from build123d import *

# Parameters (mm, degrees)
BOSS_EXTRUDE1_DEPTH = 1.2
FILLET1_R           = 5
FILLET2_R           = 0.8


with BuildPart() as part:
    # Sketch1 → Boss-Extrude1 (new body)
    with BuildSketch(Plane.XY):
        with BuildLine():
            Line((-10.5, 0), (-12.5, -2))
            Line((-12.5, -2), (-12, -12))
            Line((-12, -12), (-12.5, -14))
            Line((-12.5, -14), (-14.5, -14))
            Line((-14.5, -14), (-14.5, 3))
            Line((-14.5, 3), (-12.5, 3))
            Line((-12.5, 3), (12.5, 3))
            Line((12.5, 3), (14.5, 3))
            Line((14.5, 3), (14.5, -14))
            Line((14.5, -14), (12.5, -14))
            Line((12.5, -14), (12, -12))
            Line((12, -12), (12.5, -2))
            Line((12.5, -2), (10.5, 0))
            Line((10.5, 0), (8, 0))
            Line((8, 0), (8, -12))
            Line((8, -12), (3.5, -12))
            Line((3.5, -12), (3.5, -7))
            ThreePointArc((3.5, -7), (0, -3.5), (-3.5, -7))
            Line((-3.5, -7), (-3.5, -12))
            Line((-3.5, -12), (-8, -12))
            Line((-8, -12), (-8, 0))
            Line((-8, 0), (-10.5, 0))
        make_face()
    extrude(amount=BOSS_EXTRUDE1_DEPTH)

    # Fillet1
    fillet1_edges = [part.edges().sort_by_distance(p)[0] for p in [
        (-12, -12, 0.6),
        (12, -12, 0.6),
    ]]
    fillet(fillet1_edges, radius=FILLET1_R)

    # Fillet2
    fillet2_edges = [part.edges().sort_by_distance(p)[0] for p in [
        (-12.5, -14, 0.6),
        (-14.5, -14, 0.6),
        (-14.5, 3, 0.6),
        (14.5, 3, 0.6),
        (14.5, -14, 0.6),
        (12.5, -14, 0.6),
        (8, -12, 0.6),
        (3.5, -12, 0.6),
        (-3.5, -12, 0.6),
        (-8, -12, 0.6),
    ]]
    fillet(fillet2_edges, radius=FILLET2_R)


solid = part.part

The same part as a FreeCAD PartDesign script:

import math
import FreeCAD as App
import Part
import Sketcher
from FreeCAD import Vector


def edges_at(feature, points):
    """Names of the edges that pass closest to the given points."""
    edges = feature.Shape.Edges
    near = lambda p: min(range(len(edges)), key=lambda i: edges[i].distToShape(Part.Vertex(*p))[0])
    return sorted({f"Edge{near(p) + 1}" for p in points})

doc = App.newDocument("Part")
body = doc.addObject("PartDesign::Body", "Body")

# Sketch on XY plane
sketch1 = body.newObject("Sketcher::SketchObject", "Sketch")
sketch1.AttachmentSupport = (doc.getObject("XY_Plane"), [""])
sketch1.MapMode = "FlatFace"
sketch1.addGeometry([
    Part.LineSegment(Vector(-12.5, -2, 0), Vector(-10.5, 0, 0)),  # 0
    Part.LineSegment(Vector(-10.5, 0, 0), Vector(-8, 0, 0)),  # 1
    Part.LineSegment(Vector(-8, 0, 0), Vector(-8, -12, 0)),  # 2
    Part.LineSegment(Vector(-8, -12, 0), Vector(-3.5, -12, 0)),  # 3
    Part.LineSegment(Vector(-3.5, -12, 0), Vector(-3.5, -7, 0)),  # 4
    Part.ArcOfCircle(Part.Circle(Vector(0, -7, 0), Vector(0, 0, 1), 3.5), math.radians(0), math.radians(180)),  # 5
    Part.LineSegment(Vector(3.5, -7, 0), Vector(3.5, -12, 0)),  # 6
    Part.LineSegment(Vector(3.5, -12, 0), Vector(8, -12, 0)),  # 7
    Part.LineSegment(Vector(8, -12, 0), Vector(8, 0, 0)),  # 8
    Part.LineSegment(Vector(8, 0, 0), Vector(10.5, 0, 0)),  # 9
    Part.LineSegment(Vector(10.5, 0, 0), Vector(12.5, -2, 0)),  # 10
    Part.LineSegment(Vector(12.5, -2, 0), Vector(12, -12, 0)),  # 11
    Part.LineSegment(Vector(12, -12, 0), Vector(12.5, -14, 0)),  # 12
    Part.LineSegment(Vector(12.5, -14, 0), Vector(14.5, -14, 0)),  # 13
    Part.LineSegment(Vector(14.5, -14, 0), Vector(14.5, 3, 0)),  # 14
    Part.LineSegment(Vector(14.5, 3, 0), Vector(-14.5, 3, 0)),  # 15
    Part.LineSegment(Vector(-14.5, 3, 0), Vector(-14.5, -14, 0)),  # 16
    Part.LineSegment(Vector(-14.5, -14, 0), Vector(-12.5, -14, 0)),  # 17
    Part.LineSegment(Vector(-12.5, -14, 0), Vector(-12, -12, 0)),  # 18
    Part.LineSegment(Vector(-12, -12, 0), Vector(-12.5, -2, 0)),  # 19
], False)
sketch1.addConstraint([
    Sketcher.Constraint("Coincident", 0, 2, 1, 1),
    Sketcher.Constraint("Coincident", 1, 2, 2, 1),
    Sketcher.Constraint("Coincident", 2, 2, 3, 1),
    Sketcher.Constraint("Coincident", 3, 2, 4, 1),
    Sketcher.Constraint("Tangent", 4, 2, 5, 2),
    Sketcher.Constraint("Tangent", 5, 1, 6, 1),
    Sketcher.Constraint("Coincident", 6, 2, 7, 1),
    Sketcher.Constraint("Coincident", 7, 2, 8, 1),
    Sketcher.Constraint("Coincident", 8, 2, 9, 1),
    Sketcher.Constraint("Coincident", 9, 2, 10, 1),
    Sketcher.Constraint("Coincident", 10, 2, 11, 1),
    Sketcher.Constraint("Coincident", 11, 2, 12, 1),
    Sketcher.Constraint("Coincident", 12, 2, 13, 1),
    Sketcher.Constraint("Coincident", 13, 2, 14, 1),
    Sketcher.Constraint("Coincident", 14, 2, 15, 1),
    Sketcher.Constraint("Coincident", 15, 2, 16, 1),
    Sketcher.Constraint("Coincident", 16, 2, 17, 1),
    Sketcher.Constraint("Coincident", 17, 2, 18, 1),
    Sketcher.Constraint("Coincident", 18, 2, 19, 1),
    Sketcher.Constraint("Coincident", 19, 2, 0, 1),
    Sketcher.Constraint("Horizontal", 1),
    Sketcher.Constraint("Vertical", 2),
    Sketcher.Constraint("Horizontal", 3),
    Sketcher.Constraint("Vertical", 4),
    Sketcher.Constraint("Vertical", 6),
    Sketcher.Constraint("Horizontal", 7),
    Sketcher.Constraint("Vertical", 8),
    Sketcher.Constraint("Horizontal", 9),
    Sketcher.Constraint("Horizontal", 13),
    Sketcher.Constraint("Vertical", 14),
    Sketcher.Constraint("Horizontal", 15),
    Sketcher.Constraint("Vertical", 16),
    Sketcher.Constraint("Horizontal", 17),
    Sketcher.Constraint("Symmetric", 1, 2, 8, 2, -1, 1),
    Sketcher.Constraint("Symmetric", 3, 2, 6, 2, -2),
    Sketcher.Constraint("Symmetric", 0, 2, 9, 2, -2),
    Sketcher.Constraint("Symmetric", 13, 2, 16, 2, -2),
    Sketcher.Constraint("Symmetric", 11, 2, 18, 2, -2),
    Sketcher.Constraint("Symmetric", 10, 2, 19, 2, -2),
    Sketcher.Constraint("Perpendicular", 0, 10),
    Sketcher.Constraint("Horizontal", 7, 2, 11, 2),
    Sketcher.Constraint("Vertical", 10, 2, 12, 2),
    Sketcher.Constraint("Vertical", 17, 2, 19, 2),
    Sketcher.Constraint("Radius", 5, 3.5),
    Sketcher.Constraint("DistanceX", 13, 1, 13, 2, 2.0),
    Sketcher.Constraint("DistanceX", 15, 2, 15, 1, 29.0),
    Sketcher.Constraint("DistanceY", 2, 2, 2, 1, 12.0),
    Sketcher.Constraint("DistanceY", 4, 1, 4, 2, 5.0),
    Sketcher.Constraint("DistanceY", 14, 1, 14, 2, 17.0),
    Sketcher.Constraint("DistanceX", 1, 1, 1, 2, 2.5),
    Sketcher.Constraint("DistanceX", 3, 1, 3, 2, 4.5),
    Sketcher.Constraint("DistanceX", -1, 1, 11, 2, 12.0),
    Sketcher.Constraint("DistanceY", 12, 2, -1, 1, 14.0),
])
pad1 = body.newObject("PartDesign::Pad", "Pad")
pad1.Profile = sketch1
pad1.Length = 1.2
doc.recompute()

fillet = body.newObject("PartDesign::Fillet", "Fillet")
fillet.Base = (pad1, edges_at(pad1, [(-12, -12, 0.6), (12, -12, 0.6)]))
fillet.Radius = 5
doc.recompute()

fillet2 = body.newObject("PartDesign::Fillet", "Fillet001")
fillet2.Base = (fillet, edges_at(fillet, [
    (-12.5, -14, 0.6),
    (-14.5, -14, 0.6),
    (-14.5, 3, 0.6),
    (14.5, 3, 0.6),
    (14.5, -14, 0.6),
    (12.5, -14, 0.6),
    (8, -12, 0.6),
    (3.5, -12, 0.6),
    (-3.5, -12, 0.6),
    (-8, -12, 0.6),
]))
fillet2.Radius = 0.8

doc.recompute()
